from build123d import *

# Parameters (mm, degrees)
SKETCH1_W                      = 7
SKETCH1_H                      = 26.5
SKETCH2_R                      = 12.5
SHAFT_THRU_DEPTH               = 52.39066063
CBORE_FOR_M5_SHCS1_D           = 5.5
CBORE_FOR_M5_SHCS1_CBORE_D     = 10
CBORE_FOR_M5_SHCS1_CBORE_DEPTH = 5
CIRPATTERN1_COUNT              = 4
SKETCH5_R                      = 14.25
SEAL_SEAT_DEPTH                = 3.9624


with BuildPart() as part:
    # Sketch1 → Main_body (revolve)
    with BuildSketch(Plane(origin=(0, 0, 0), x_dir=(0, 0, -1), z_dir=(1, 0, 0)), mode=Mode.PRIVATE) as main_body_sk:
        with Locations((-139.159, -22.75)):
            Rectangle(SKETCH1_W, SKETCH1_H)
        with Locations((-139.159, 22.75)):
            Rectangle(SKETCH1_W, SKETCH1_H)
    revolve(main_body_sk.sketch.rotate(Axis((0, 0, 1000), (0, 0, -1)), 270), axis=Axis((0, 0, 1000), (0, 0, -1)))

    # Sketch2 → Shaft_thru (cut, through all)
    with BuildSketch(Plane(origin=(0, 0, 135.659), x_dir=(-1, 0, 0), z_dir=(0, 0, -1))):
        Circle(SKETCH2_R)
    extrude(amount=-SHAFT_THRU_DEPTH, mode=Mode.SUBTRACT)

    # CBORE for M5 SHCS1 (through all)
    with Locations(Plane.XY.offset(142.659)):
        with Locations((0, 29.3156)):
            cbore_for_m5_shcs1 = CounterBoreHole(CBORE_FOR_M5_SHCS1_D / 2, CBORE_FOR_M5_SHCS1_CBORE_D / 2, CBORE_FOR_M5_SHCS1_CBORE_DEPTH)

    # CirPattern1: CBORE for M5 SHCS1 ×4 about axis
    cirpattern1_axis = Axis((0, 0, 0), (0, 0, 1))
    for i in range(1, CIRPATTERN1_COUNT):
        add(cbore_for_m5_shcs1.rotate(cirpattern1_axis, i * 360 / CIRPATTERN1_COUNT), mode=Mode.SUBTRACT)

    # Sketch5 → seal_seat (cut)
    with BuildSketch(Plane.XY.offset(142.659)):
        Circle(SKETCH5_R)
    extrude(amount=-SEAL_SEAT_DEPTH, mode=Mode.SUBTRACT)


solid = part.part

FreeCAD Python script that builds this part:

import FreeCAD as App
import Part
import Sketcher


def add_polygon(sketch, points):
    """Adds a closed chain of lines whose ends are joined by coincident constraints."""
    first, n = sketch.GeometryCount, len(points)
    for a, b in zip(points, points[1:] + points[:1]):
        sketch.addGeometry(Part.LineSegment(App.Vector(*a, 0), App.Vector(*b, 0)), False)
    for i in range(n):
        sketch.addConstraint(Sketcher.Constraint("Coincident", first + i, 2, first + (i + 1) % n, 1))

doc = App.newDocument("Part")
body = doc.addObject("PartDesign::Body", "Body")

sketch1 = doc.addObject("Sketcher::SketchObject", "Sketch")
body.addObject(sketch1)
sketch1.AttachmentSupport = (doc.YZ_Plane, [""])
sketch1.MapMode = "FlatFace"
add_polygon(sketch1, [(-10, 143), (-36, 143), (-36, 136), (-10, 136)])
add_polygon(sketch1, [(36, 143), (10, 143), (10, 136), (36, 136)])
sketch1.addConstraint([
    Sketcher.Constraint("Horizontal", 0),
    Sketcher.Constraint("Vertical", 1),
    Sketcher.Constraint("Horizontal", 2),
    Sketcher.Constraint("Vertical", 3),
    Sketcher.Constraint("Horizontal", 4),
    Sketcher.Constraint("Vertical", 5),
    Sketcher.Constraint("Horizontal", 6),
    Sketcher.Constraint("Vertical", 7),
    Sketcher.Constraint("Symmetric", 3, 2, 4, 2, -2),
    Sketcher.Constraint("Symmetric", 1, 2, 6, 2, -2),
    Sketcher.Constraint("DistanceY", 1, 2, 1, 1, 7.0),
    Sketcher.Constraint("DistanceX", 0, 2, 0, 1, 26.5),
    Sketcher.Constraint("DistanceX", 0, 2, -1, 1, 36.0),
    Sketcher.Constraint("DistanceY", -1, 1, 0, 2, 142.659),
])
revolution = doc.addObject("PartDesign::Revolution", "Revolution")
body.addObject(revolution)
revolution.Profile = sketch1
revolution.ReferenceAxis = (sketch1, ["V_Axis"])
revolution.Angle = 360

sketch2 = doc.addObject("Sketcher::SketchObject", "Sketch001")
body.addObject(sketch2)
sketch2.AttachmentSupport = (doc.XY_Plane, [""])
sketch2.MapMode = "FlatFace"
sketch2.AttachmentOffset = App.Placement(App.Vector(0, 0, 135.659), App.Rotation())
sketch2.addGeometry(Part.Circle(App.Vector(0, 0, 0), App.Vector(0, 0, 1), 12), False)
sketch2.addConstraint([
    Sketcher.Constraint("Coincident", 0, 3, -1, 1),
    Sketcher.Constraint("Diameter", 0, 25.0),
])
pocket1 = doc.addObject("PartDesign::Pocket", "Pocket")
body.addObject(pocket1)
pocket1.Profile = sketch2
pocket1.Type = "ThroughAll"
pocket1.Reversed = True

sketch3 = doc.addObject("Sketcher::SketchObject", "Sketch002")
body.addObject(sketch3)
sketch3.AttachmentSupport = (doc.XY_Plane, [""])
sketch3.MapMode = "FlatFace"
sketch3.AttachmentOffset = App.Placement(App.Vector(0, 0, 142.659), App.Rotation())
sketch3.addGeometry(Part.Circle(App.Vector(0, 29.3, 0), App.Vector(0, 0, 1), 2.8), False)
sketch3.addConstraint([
    Sketcher.Constraint("PointOnObject", 0, 3, -2),
    Sketcher.Constraint("Diameter", 0, 5.5),
    Sketcher.Constraint("DistanceY", -1, 1, 0, 3, 29.3156),
])
doc.recompute()
hole = doc.addObject("PartDesign::Hole", "Hole")
body.addObject(hole)
hole.Profile = sketch3
hole.ThreadType = "None"
hole.Diameter = 5.5
hole.DepthType = "ThroughAll"
hole.HoleCutType = "Counterbore"
hole.HoleCutDiameter = 10
hole.HoleCutDepth = 5
doc.recompute()

polarpattern = doc.addObject("PartDesign::PolarPattern", "PolarPattern")
body.addObject(polarpattern)
polarpattern.Originals = [hole]
polarpattern.Axis = (doc.Z_Axis, [""])
polarpattern.Angle = 360
polarpattern.Occurrences = 4
body.Tip = polarpattern

sketch4 = doc.addObject("Sketcher::SketchObject", "Sketch003")
body.addObject(sketch4)
sketch4.AttachmentSupport = (doc.XY_Plane, [""])
sketch4.MapMode = "FlatFace"
sketch4.AttachmentOffset = App.Placement(App.Vector(0, 0, 142.659), App.Rotation())
sketch4.addGeometry(Part.Circle(App.Vector(0, 0, 0), App.Vector(0, 0, 1), 14), False)
sketch4.addConstraint([
    Sketcher.Constraint("Coincident", 0, 3, -1, 1),
    Sketcher.Constraint("Diameter", 0, 28.5),
])
pocket2 = doc.addObject("PartDesign::Pocket", "Pocket001")
body.addObject(pocket2)
pocket2.Profile = sketch4
pocket2.Length = 3.9624

doc.recompute()
